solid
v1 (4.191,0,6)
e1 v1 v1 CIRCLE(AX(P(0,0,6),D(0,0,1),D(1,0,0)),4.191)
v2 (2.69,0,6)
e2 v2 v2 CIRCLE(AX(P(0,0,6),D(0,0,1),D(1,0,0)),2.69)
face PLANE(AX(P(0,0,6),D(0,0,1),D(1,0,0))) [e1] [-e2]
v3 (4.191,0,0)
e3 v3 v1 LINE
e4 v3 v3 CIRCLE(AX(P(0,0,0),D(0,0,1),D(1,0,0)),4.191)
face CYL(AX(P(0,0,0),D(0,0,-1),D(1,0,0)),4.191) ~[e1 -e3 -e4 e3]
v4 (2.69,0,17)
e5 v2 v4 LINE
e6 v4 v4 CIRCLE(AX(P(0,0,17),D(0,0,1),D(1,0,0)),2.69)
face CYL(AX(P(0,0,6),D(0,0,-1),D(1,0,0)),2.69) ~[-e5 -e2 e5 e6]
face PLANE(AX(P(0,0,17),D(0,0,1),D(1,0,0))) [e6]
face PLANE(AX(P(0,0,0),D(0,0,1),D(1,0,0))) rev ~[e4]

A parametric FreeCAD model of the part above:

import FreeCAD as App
import Part
import Sketcher
Q = App.Units.Quantity

doc = App.newDocument("Part")
body = doc.addObject("PartDesign::Body", "Body")

# Sketch on XY plane
sketch1 = body.newObject("Sketcher::SketchObject", "Sketch")
sketch1.AttachmentSupport = (doc.getObject("XY_Plane"), [""])
sketch1.MapMode = "FlatFace"
sketch1.addGeometry(Part.Circle(App.Vector(0, 0, 0), App.Vector(0, 0, 1), 4.191), False)
sketch1.addConstraint([
    Sketcher.Constraint("Coincident", 0, 3, -1, 1),
    Sketcher.Constraint("Diameter", 0, Q("8.382 mm")),
])
pad1 = body.newObject("PartDesign::Pad", "Pad")
pad1.Profile = sketch1
pad1.Length = 6

# Sketch on XY plane
sketch2 = body.newObject("Sketcher::SketchObject", "Sketch001")
sketch2.AttachmentSupport = (doc.getObject("XY_Plane"), [""])
sketch2.MapMode = "FlatFace"
sketch2.AttachmentOffset = App.Placement(App.Vector(0, 0, 6), App.Rotation())
sketch2.addGeometry(Part.Circle(App.Vector(0, 0, 0), App.Vector(0, 0, 1), 2.69), False)
sketch2.addConstraint([
    Sketcher.Constraint("Coincident", 0, 3, -1, 1),
    Sketcher.Constraint("Diameter", 0, Q("5.38 mm")),
])
pad2 = body.newObject("PartDesign::Pad", "Pad001")
pad2.Profile = sketch2
pad2.Length = 11

doc.recompute()
